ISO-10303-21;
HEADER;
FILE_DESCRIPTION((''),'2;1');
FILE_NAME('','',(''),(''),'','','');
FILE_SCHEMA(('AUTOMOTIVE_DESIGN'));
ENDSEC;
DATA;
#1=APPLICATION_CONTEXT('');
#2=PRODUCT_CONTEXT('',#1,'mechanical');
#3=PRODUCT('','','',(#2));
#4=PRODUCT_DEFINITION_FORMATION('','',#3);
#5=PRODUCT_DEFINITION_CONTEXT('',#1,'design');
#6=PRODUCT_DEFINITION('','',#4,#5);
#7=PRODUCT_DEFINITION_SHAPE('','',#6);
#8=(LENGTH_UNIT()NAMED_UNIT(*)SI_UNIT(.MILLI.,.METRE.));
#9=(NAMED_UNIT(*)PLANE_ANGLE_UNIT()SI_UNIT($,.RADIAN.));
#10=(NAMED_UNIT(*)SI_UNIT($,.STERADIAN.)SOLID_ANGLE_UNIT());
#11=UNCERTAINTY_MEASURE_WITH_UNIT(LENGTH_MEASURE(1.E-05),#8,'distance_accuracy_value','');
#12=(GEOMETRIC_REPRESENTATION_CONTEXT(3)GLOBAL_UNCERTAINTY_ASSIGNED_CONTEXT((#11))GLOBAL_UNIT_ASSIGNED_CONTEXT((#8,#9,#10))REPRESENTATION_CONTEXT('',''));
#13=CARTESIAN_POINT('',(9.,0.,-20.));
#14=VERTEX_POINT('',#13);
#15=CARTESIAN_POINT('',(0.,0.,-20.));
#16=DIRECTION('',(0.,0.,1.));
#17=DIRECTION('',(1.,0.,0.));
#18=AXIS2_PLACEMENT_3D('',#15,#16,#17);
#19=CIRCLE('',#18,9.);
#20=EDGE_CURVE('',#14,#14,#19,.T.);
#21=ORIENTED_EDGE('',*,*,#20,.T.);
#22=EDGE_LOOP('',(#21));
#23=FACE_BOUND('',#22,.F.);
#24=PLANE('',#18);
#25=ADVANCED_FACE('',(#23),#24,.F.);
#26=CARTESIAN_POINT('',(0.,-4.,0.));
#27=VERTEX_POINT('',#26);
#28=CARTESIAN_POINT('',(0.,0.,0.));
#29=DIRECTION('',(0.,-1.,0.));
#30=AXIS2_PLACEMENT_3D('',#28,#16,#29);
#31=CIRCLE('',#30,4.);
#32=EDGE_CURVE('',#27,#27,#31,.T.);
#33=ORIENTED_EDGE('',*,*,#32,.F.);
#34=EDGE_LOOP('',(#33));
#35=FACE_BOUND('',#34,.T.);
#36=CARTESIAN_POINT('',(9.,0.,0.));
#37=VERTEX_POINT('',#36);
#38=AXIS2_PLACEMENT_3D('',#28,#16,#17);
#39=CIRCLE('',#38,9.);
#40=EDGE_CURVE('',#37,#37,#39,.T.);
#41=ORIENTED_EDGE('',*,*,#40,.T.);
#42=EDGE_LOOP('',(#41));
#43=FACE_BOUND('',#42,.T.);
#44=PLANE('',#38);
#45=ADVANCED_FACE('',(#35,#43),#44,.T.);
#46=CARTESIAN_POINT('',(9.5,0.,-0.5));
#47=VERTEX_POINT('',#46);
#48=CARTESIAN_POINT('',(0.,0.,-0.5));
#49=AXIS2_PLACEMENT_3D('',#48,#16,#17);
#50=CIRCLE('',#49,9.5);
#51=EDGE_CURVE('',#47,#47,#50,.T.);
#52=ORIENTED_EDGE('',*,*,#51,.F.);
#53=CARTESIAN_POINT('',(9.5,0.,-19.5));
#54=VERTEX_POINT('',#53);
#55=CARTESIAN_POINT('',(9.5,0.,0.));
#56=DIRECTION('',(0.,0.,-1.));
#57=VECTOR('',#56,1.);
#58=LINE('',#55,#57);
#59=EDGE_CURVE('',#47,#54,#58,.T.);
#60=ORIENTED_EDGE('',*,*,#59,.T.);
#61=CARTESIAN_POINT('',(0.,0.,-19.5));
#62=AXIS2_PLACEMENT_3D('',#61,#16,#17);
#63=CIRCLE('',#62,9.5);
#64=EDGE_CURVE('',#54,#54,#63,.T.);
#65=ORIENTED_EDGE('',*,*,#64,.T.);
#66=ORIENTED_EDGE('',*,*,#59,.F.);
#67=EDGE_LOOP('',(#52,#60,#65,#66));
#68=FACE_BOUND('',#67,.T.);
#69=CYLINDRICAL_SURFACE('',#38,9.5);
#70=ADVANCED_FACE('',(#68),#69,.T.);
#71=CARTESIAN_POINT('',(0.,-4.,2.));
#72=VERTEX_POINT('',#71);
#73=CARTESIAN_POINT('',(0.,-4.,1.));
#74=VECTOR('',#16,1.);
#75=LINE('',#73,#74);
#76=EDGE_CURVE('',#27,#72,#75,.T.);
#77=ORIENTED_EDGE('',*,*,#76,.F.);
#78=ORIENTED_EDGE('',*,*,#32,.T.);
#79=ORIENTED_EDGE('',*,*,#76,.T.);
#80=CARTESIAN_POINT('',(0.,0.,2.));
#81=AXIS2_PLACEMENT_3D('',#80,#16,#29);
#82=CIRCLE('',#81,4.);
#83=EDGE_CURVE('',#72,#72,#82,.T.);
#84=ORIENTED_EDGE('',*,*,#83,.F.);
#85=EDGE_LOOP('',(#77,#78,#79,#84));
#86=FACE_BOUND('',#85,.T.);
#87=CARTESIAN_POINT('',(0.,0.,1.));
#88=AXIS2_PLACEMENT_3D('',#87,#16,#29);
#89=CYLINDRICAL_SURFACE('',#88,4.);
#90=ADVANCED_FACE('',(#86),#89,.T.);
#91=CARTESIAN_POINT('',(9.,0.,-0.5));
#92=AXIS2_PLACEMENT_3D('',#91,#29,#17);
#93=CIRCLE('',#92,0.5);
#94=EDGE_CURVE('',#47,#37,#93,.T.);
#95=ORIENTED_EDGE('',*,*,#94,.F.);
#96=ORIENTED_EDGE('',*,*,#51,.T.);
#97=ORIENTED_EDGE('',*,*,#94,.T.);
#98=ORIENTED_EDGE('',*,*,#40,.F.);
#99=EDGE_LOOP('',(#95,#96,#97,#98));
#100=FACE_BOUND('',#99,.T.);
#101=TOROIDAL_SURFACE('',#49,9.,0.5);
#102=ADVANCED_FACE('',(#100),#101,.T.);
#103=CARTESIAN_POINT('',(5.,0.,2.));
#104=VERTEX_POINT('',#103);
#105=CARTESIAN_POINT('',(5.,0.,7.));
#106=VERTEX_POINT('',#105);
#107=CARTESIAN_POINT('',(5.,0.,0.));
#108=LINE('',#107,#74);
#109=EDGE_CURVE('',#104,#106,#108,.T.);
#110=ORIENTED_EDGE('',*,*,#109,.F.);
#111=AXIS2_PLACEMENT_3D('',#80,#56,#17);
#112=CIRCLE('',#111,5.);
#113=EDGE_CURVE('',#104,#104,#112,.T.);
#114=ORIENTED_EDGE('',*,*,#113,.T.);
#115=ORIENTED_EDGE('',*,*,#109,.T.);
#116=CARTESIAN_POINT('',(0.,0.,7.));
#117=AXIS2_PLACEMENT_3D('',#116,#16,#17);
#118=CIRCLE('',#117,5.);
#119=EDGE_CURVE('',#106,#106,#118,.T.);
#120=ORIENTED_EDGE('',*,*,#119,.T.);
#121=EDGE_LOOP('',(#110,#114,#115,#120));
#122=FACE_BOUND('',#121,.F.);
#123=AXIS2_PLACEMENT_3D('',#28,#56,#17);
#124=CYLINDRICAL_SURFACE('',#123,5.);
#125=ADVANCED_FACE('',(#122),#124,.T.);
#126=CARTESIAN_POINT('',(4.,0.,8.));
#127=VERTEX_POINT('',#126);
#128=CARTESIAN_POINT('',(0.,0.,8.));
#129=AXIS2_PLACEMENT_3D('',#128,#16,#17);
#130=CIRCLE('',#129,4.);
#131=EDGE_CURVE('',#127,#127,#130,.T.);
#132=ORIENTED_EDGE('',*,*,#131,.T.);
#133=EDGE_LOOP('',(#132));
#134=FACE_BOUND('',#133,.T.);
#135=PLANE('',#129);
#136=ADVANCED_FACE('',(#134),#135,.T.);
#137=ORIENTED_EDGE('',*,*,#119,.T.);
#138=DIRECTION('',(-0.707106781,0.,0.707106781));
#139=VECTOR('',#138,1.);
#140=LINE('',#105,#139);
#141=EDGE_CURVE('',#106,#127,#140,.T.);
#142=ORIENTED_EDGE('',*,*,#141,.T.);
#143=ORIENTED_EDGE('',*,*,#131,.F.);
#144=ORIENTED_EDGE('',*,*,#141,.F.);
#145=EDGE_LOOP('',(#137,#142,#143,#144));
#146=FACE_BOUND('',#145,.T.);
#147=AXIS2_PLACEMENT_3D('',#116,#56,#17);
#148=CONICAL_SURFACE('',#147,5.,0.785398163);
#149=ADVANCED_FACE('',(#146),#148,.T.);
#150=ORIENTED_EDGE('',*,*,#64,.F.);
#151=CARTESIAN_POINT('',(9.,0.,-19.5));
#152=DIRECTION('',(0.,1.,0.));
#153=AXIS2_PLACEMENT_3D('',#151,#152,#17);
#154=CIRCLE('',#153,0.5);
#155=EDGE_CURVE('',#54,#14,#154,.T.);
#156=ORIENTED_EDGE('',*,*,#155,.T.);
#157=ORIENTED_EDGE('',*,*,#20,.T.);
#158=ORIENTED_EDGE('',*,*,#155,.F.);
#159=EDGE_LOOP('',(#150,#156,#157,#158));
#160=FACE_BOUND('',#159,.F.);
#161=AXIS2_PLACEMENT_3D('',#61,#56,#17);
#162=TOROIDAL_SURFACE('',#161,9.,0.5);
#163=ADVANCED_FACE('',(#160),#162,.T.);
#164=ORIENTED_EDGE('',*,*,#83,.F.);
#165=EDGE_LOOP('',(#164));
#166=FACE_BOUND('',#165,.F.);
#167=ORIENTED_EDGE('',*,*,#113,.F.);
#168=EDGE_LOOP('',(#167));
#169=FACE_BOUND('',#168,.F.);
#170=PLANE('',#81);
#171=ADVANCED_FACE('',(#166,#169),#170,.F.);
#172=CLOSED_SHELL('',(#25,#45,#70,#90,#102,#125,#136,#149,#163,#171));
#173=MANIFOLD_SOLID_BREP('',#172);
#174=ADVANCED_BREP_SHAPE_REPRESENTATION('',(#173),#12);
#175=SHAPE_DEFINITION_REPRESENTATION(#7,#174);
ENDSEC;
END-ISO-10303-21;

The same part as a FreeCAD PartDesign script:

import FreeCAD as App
import Part
import Sketcher
from FreeCAD import Vector


def edges_at(feature, points):
    """Names of the edges that pass closest to the given points."""
    edges = feature.Shape.Edges
    near = lambda p: min(range(len(edges)), key=lambda i: edges[i].distToShape(Part.Vertex(*p))[0])
    return sorted({f"Edge{near(p) + 1}" for p in points})


def add_polygon(sketch, points):
    """Adds a closed chain of lines whose ends are joined by coincident constraints."""
    first, n = sketch.GeometryCount, len(points)
    for a, b in zip(points, points[1:] + points[:1]):
        sketch.addGeometry(Part.LineSegment(App.Vector(*a, 0), App.Vector(*b, 0)), False)
    for i in range(n):
        sketch.addConstraint(Sketcher.Constraint("Coincident", first + i, 2, first + (i + 1) % n, 1))

doc = App.newDocument("Part")
body = doc.addObject("PartDesign::Body", "Body")

# Sketch on XY plane
sketch1 = body.newObject("Sketcher::SketchObject", "Sketch")
sketch1.AttachmentSupport = (doc.getObject("XY_Plane"), [""])
sketch1.MapMode = "FlatFace"
sketch1.addGeometry(Part.Circle(Vector(0, 0, 0), Vector(0, 0, 1), 10), False)
sketch1.addConstraint([
    Sketcher.Constraint("Coincident", 0, 3, -1, 1),
    Sketcher.Constraint("Diameter", 0, 19.0),
])
pad1 = body.newObject("PartDesign::Pad", "Pad")
pad1.Profile = sketch1
pad1.Length = 20
pad1.Reversed = True

# Sketch on XY plane
sketch2 = body.newObject("Sketcher::SketchObject", "Sketch001")
sketch2.AttachmentSupport = (doc.getObject("XY_Plane"), [""])
sketch2.MapMode = "FlatFace"
sketch2.addGeometry(Part.Circle(Vector(0, 0, 0), Vector(0, 0, 1), 5), False)
sketch2.addConstraint([
    Sketcher.Constraint("Coincident", 0, 3, -1, 1),
    Sketcher.Constraint("Diameter", 0, 10.0),
])
pad2 = body.newObject("PartDesign::Pad", "Pad001")
pad2.Profile = sketch2
pad2.Length = 8
doc.recompute()

fillet = body.newObject("PartDesign::Fillet", "Fillet")
fillet.Base = (pad2, edges_at(pad2, [(-9.5, 0, -20), (-9.5, 0, 0)]))
fillet.Radius = 0.5
doc.recompute()

chamfer = body.newObject("PartDesign::Chamfer", "Chamfer")
chamfer.Base = (fillet, edges_at(fillet, [(-5, 0, 8)]))
chamfer.Size = 1

# Sketch on YZ plane
sketch3 = body.newObject("Sketcher::SketchObject", "Sketch002")
sketch3.AttachmentSupport = (doc.getObject("YZ_Plane"), [""])
sketch3.MapMode = "FlatFace"
add_polygon(sketch3, [(-5, 2), (-5, 0), (-4, 0), (-4, 2)])  # lines 0-3
sketch3.addConstraint([
    Sketcher.Constraint("Vertical", 0),
    Sketcher.Constraint("Horizontal", 1),
    Sketcher.Constraint("Vertical", 2),
    Sketcher.Constraint("Horizontal", 3),
    Sketcher.Constraint("PointOnObject", 0, 2, -1),
    Sketcher.Constraint("DistanceX", 1, 1, 1, 2, 1.0),
    Sketcher.Constraint("DistanceY", 0, 2, 0, 1, 2.0),
    Sketcher.Constraint("DistanceX", 0, 2, -1, 1, 5.0),
])
groove = body.newObject("PartDesign::Groove", "Groove")
groove.Profile = sketch3
groove.ReferenceAxis = (sketch3, ["V_Axis"])
groove.Angle = 360

doc.recompute()
